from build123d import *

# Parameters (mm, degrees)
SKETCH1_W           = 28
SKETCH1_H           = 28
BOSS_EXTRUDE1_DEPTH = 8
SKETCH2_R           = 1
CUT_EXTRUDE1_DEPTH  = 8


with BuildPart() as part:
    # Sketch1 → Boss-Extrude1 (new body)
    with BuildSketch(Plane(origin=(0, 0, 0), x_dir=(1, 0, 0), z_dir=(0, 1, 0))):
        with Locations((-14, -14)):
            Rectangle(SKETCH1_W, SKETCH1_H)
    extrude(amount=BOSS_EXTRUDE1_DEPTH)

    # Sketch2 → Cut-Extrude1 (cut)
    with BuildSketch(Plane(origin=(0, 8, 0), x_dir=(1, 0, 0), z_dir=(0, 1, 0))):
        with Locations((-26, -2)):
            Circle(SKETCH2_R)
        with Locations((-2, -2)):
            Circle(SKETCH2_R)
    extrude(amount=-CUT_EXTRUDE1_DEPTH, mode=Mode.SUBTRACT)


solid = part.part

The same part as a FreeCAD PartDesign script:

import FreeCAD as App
import Part
import Sketcher

V = App.Vector
Q = App.Units.Quantity


def add_polygon(sketch, points):
    """Adds a closed chain of lines whose ends are joined by coincident constraints."""
    first, n = sketch.GeometryCount, len(points)
    for a, b in zip(points, points[1:] + points[:1]):
        sketch.addGeometry(Part.LineSegment(App.Vector(*a, 0), App.Vector(*b, 0)), False)
    for i in range(n):
        sketch.addConstraint(Sketcher.Constraint("Coincident", first + i, 2, first + (i + 1) % n, 1))

doc = App.newDocument("Part")
body = doc.addObject("PartDesign::Body", "Body")

# Sketch on XZ plane
sketch1 = doc.addObject("Sketcher::SketchObject", "Sketch")
body.addObject(sketch1)
sketch1.AttachmentSupport = (doc.XZ_Plane, [""])
sketch1.MapMode = "FlatFace"
add_polygon(sketch1, [(-28, 0), (-28, 28), (0, 28), (0, 0)])  # lines 0-3
sketch1.addConstraint(Sketcher.Constraint("Vertical", 0))
sketch1.addConstraint(Sketcher.Constraint("Horizontal", 1))
sketch1.addConstraint(Sketcher.Constraint("Vertical", 2))
sketch1.addConstraint(Sketcher.Constraint("Horizontal", 3))
sketch1.addConstraint(Sketcher.Constraint("Coincident", 2, 2, -1, 1))
sketch1.addConstraint(Sketcher.Constraint("Equal", 3, 0))
sketch1.addConstraint(Sketcher.Constraint("DistanceX", 1, 1, 1, 2, Q("28 mm")))
pad1 = doc.addObject("PartDesign::Pad", "Pad")
body.addObject(pad1)
pad1.Profile = sketch1
pad1.Length = 8
pad1.Reversed = True

# Sketch on XZ plane
sketch2 = doc.addObject("Sketcher::SketchObject", "Sketch001")
body.addObject(sketch2)
sketch2.AttachmentSupport = (doc.XZ_Plane, [""])
sketch2.MapMode = "FlatFace"
sketch2.AttachmentOffset = App.Placement(V(0, 0, -8), App.Rotation())
sketch2.addGeometry(Part.Circle(V(-26, 2, 0), V(0, 0, 1), 1), False)
sketch2.addGeometry(Part.Circle(V(-2, 2, 0), V(0, 0, 1), 1), False)
sketch2.addConstraint(Sketcher.Constraint("Equal", 0, 1))
sketch2.addConstraint(Sketcher.Constraint("Horizontal", 0, 3, 1, 3))
sketch2.addConstraint(Sketcher.Constraint("Diameter", 0, Q("2 mm")))
sketch2.addConstraint(Sketcher.Constraint("DistanceX", 0, 3, -1, 1, Q("26 mm")))
sketch2.addConstraint(Sketcher.Constraint("DistanceY", -1, 1, 0, 3, Q("2 mm")))
sketch2.addConstraint(Sketcher.Constraint("DistanceX", 1, 3, -1, 1, Q("2 mm")))
pocket1 = doc.addObject("PartDesign::Pocket", "Pocket")
body.addObject(pocket1)
pocket1.Profile = sketch2
pocket1.Length = 8
pocket1.Reversed = True

doc.recompute()
